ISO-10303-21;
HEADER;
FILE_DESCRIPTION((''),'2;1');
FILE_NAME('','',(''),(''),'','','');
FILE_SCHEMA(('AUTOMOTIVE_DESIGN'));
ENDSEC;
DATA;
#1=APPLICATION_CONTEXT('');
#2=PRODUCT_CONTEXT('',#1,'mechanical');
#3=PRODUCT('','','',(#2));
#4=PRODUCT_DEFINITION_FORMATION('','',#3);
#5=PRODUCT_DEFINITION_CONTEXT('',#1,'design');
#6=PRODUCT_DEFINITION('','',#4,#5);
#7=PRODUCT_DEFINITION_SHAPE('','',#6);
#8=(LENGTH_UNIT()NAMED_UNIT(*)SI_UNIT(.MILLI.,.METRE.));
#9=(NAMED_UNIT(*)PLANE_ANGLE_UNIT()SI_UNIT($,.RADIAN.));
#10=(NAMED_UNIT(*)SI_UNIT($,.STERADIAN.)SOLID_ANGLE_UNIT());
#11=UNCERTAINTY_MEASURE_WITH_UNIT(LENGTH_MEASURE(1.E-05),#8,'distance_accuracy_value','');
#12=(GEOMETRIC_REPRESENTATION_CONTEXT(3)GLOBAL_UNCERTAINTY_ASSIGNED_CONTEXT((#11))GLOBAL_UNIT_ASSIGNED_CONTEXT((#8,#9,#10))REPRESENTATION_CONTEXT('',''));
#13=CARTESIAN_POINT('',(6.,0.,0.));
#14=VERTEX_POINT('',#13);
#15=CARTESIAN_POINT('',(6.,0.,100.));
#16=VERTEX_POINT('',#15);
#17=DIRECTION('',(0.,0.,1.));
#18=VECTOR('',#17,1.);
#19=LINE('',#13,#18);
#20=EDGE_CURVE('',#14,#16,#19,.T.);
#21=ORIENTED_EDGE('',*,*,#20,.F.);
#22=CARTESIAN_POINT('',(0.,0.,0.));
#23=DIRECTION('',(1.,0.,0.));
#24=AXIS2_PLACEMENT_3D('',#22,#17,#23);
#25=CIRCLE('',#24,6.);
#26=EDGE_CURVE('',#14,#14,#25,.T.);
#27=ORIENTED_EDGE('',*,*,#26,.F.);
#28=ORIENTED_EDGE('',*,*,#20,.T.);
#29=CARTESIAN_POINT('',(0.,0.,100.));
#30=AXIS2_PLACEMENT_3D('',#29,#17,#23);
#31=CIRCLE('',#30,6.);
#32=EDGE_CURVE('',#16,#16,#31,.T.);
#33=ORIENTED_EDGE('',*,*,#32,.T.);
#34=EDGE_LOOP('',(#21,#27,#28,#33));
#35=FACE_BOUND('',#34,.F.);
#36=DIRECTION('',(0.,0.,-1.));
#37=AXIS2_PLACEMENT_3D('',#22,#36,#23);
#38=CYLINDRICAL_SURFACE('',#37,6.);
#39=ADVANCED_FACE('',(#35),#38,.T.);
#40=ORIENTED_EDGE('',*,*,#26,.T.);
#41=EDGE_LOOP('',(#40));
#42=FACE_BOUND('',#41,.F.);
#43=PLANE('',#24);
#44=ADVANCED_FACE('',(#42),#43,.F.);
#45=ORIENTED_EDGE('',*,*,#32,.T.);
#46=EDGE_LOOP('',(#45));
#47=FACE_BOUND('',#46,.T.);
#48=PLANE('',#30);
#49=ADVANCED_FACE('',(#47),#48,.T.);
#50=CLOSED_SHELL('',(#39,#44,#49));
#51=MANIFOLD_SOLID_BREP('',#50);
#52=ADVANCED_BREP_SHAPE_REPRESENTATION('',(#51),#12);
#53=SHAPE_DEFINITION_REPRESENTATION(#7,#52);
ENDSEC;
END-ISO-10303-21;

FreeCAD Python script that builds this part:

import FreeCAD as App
import Part
import Sketcher

V = App.Vector

doc = App.newDocument("Part")
body = doc.addObject("PartDesign::Body", "Body")

# Sketch on XY plane
sketch1 = body.newObject("Sketcher::SketchObject", "Sketch")
sketch1.AttachmentSupport = (doc.getObject("XY_Plane"), [""])
sketch1.MapMode = "FlatFace"
sketch1.addGeometry(Part.Circle(V(0, 0, 0), V(0, 0, 1), 6), False)
sketch1.addConstraint([
    Sketcher.Constraint("Coincident", 0, 3, -1, 1),
    Sketcher.Constraint("Diameter", 0, 12.0),
])
pad1 = body.newObject("PartDesign::Pad", "Pad")
pad1.Profile = sketch1
pad1.Length = 100

doc.recompute()
